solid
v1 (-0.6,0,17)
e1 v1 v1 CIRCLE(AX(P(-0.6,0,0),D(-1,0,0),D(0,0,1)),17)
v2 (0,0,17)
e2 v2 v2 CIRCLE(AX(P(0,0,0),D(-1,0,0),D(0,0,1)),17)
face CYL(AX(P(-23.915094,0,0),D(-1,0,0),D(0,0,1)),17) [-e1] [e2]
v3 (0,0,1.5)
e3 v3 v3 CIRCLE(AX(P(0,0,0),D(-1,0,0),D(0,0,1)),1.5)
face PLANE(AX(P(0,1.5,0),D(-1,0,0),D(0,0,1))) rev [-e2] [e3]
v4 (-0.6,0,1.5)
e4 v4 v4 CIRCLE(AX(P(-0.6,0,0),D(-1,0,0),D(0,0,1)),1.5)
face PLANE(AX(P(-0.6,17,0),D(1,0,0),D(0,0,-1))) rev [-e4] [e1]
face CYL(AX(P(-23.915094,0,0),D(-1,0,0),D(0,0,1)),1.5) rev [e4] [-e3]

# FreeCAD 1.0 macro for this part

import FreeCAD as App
import Part
import Sketcher
from FreeCAD import Vector
Q = App.Units.Quantity


def add_polygon(sketch, points):
    """Adds a closed chain of lines whose ends are joined by coincident constraints."""
    first, n = sketch.GeometryCount, len(points)
    for a, b in zip(points, points[1:] + points[:1]):
        sketch.addGeometry(Part.LineSegment(App.Vector(*a, 0), App.Vector(*b, 0)), False)
    for i in range(n):
        sketch.addConstraint(Sketcher.Constraint("Coincident", first + i, 2, first + (i + 1) % n, 1))

doc = App.newDocument("Part")
params = doc.addObject("Spreadsheet::Sheet", "Params")
for row, (alias, value) in enumerate([
    ("sketch1_width", "0.6 mm"),
    ("sketch1_height", "15.5 mm"),
    ("revolution_angle", "360 deg"),
], start=1):
    params.set(f"A{row}", alias)
    params.set(f"B{row}", "=" + value)
    params.setAlias(f"B{row}", alias)

body = doc.addObject("PartDesign::Body", "Body")

sketch1 = body.newObject("Sketcher::SketchObject", "Sketch")
sketch1.AttachmentSupport = (doc.getObject("XY_Plane"), [""])
sketch1.MapMode = "FlatFace"
add_polygon(sketch1, [(-0.6, 17), (-0.6, 1.5), (0, 1.5), (0, 17)])
sketch1.addConstraint([
    Sketcher.Constraint("Vertical", 0),
    Sketcher.Constraint("Horizontal", 1),
    Sketcher.Constraint("Vertical", 2),
    Sketcher.Constraint("Horizontal", 3),
    Sketcher.Constraint("PointOnObject", 1, 2, -2),
    Sketcher.Constraint("DistanceX", 1, 1, 1, 2, Q("0.6 mm")),
    Sketcher.Constraint("DistanceY", 0, 2, 0, 1, Q("15.5 mm")),
    Sketcher.Constraint("DistanceY", -1, 1, 2, 2, Q("17 mm")),
])
sketch1.setExpression("Constraints[9]", "Params.sketch1_width")
sketch1.setExpression("Constraints[10]", "Params.sketch1_height")
revolution = body.newObject("PartDesign::Revolution", "Revolution")
revolution.Profile = sketch1
revolution.ReferenceAxis = (sketch1, ["H_Axis"])
revolution.setExpression("Angle", "Params.revolution_angle")

doc.recompute()
